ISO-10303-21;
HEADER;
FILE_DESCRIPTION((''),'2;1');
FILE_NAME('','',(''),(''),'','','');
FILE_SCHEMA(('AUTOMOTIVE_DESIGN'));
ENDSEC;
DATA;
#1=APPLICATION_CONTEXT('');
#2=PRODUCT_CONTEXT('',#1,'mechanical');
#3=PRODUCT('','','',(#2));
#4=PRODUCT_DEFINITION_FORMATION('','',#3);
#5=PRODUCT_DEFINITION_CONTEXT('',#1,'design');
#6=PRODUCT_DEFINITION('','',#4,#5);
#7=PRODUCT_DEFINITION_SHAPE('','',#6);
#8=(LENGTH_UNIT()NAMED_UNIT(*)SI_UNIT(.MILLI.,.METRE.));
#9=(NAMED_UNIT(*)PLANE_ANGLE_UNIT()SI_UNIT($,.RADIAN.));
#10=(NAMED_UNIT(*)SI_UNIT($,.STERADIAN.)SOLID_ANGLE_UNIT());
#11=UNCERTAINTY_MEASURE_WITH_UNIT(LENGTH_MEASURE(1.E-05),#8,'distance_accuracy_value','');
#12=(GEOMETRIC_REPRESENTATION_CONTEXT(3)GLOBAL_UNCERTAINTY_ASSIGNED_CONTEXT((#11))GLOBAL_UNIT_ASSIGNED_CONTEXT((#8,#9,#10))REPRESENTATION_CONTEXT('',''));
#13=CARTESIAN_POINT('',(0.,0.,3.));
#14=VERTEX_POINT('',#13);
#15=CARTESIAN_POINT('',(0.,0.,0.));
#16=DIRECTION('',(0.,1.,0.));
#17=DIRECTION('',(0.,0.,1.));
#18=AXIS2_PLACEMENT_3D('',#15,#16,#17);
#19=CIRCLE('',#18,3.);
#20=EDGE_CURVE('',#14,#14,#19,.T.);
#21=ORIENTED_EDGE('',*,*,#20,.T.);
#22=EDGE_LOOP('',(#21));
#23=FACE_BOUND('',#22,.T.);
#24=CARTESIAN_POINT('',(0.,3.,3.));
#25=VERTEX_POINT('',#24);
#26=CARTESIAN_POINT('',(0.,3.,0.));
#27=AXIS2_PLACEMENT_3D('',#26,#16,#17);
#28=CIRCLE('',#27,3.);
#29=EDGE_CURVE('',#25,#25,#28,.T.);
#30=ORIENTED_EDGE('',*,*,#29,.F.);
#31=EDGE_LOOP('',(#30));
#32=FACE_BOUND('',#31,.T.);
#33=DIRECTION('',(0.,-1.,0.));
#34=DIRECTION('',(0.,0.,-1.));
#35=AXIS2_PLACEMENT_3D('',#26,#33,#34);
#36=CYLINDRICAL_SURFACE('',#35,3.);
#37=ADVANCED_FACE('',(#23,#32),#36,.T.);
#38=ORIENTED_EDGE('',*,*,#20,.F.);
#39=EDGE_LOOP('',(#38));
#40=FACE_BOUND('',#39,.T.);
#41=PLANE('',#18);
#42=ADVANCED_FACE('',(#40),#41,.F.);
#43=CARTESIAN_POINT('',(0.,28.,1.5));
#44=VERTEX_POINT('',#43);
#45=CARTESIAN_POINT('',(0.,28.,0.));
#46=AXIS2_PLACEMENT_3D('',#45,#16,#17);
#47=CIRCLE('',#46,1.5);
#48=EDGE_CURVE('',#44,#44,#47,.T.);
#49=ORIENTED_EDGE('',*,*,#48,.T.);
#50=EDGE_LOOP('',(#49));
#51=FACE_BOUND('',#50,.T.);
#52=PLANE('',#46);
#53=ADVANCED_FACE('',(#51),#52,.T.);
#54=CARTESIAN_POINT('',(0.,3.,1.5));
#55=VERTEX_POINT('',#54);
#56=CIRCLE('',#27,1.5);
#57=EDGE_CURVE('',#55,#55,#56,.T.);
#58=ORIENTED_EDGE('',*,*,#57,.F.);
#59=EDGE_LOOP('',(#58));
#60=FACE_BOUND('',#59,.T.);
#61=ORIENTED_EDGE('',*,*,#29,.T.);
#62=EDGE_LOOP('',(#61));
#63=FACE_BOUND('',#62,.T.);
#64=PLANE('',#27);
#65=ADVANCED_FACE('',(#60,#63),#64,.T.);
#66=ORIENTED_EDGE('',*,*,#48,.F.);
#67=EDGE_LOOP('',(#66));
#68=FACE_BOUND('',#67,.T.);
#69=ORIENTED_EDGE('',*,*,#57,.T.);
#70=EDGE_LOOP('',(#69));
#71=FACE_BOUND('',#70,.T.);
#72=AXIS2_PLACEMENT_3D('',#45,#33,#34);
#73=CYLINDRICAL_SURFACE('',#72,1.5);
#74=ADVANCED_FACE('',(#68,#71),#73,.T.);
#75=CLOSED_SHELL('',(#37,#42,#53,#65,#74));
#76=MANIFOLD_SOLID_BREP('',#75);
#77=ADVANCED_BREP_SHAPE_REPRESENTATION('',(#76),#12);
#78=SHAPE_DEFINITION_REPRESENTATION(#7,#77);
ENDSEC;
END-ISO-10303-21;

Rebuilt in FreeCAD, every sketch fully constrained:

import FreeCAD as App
import Part
import Sketcher
Q = App.Units.Quantity

doc = App.newDocument("Part")
body = doc.addObject("PartDesign::Body", "Body")

# Sketch on XZ plane
sketch1 = body.newObject("Sketcher::SketchObject", "Sketch")
sketch1.AttachmentSupport = (doc.getObject("XZ_Plane"), [""])
sketch1.MapMode = "FlatFace"
sketch1.addGeometry(Part.Circle(App.Vector(0, 0, 0), App.Vector(0, 0, 1), 3), False)
sketch1.addConstraint(Sketcher.Constraint("Coincident", 0, 3, -1, 1))
sketch1.addConstraint(Sketcher.Constraint("Diameter", 0, Q("6 mm")))
pad1 = body.newObject("PartDesign::Pad", "Pad")
pad1.Profile = sketch1
pad1.Length = 3
pad1.Reversed = True

# Sketch on XZ plane
sketch2 = body.newObject("Sketcher::SketchObject", "Sketch001")
sketch2.AttachmentSupport = (doc.getObject("XZ_Plane"), [""])
sketch2.MapMode = "FlatFace"
sketch2.AttachmentOffset = App.Placement(App.Vector(0, 0, -3), App.Rotation())
sketch2.addGeometry(Part.Circle(App.Vector(0, 0, 0), App.Vector(0, 0, 1), 1.5), False)
sketch2.addConstraint(Sketcher.Constraint("Coincident", 0, 3, -1, 1))
sketch2.addConstraint(Sketcher.Constraint("Diameter", 0, Q("3 mm")))
pad2 = body.newObject("PartDesign::Pad", "Pad001")
pad2.Profile = sketch2
pad2.Length = 25
pad2.Reversed = True

doc.recompute()
